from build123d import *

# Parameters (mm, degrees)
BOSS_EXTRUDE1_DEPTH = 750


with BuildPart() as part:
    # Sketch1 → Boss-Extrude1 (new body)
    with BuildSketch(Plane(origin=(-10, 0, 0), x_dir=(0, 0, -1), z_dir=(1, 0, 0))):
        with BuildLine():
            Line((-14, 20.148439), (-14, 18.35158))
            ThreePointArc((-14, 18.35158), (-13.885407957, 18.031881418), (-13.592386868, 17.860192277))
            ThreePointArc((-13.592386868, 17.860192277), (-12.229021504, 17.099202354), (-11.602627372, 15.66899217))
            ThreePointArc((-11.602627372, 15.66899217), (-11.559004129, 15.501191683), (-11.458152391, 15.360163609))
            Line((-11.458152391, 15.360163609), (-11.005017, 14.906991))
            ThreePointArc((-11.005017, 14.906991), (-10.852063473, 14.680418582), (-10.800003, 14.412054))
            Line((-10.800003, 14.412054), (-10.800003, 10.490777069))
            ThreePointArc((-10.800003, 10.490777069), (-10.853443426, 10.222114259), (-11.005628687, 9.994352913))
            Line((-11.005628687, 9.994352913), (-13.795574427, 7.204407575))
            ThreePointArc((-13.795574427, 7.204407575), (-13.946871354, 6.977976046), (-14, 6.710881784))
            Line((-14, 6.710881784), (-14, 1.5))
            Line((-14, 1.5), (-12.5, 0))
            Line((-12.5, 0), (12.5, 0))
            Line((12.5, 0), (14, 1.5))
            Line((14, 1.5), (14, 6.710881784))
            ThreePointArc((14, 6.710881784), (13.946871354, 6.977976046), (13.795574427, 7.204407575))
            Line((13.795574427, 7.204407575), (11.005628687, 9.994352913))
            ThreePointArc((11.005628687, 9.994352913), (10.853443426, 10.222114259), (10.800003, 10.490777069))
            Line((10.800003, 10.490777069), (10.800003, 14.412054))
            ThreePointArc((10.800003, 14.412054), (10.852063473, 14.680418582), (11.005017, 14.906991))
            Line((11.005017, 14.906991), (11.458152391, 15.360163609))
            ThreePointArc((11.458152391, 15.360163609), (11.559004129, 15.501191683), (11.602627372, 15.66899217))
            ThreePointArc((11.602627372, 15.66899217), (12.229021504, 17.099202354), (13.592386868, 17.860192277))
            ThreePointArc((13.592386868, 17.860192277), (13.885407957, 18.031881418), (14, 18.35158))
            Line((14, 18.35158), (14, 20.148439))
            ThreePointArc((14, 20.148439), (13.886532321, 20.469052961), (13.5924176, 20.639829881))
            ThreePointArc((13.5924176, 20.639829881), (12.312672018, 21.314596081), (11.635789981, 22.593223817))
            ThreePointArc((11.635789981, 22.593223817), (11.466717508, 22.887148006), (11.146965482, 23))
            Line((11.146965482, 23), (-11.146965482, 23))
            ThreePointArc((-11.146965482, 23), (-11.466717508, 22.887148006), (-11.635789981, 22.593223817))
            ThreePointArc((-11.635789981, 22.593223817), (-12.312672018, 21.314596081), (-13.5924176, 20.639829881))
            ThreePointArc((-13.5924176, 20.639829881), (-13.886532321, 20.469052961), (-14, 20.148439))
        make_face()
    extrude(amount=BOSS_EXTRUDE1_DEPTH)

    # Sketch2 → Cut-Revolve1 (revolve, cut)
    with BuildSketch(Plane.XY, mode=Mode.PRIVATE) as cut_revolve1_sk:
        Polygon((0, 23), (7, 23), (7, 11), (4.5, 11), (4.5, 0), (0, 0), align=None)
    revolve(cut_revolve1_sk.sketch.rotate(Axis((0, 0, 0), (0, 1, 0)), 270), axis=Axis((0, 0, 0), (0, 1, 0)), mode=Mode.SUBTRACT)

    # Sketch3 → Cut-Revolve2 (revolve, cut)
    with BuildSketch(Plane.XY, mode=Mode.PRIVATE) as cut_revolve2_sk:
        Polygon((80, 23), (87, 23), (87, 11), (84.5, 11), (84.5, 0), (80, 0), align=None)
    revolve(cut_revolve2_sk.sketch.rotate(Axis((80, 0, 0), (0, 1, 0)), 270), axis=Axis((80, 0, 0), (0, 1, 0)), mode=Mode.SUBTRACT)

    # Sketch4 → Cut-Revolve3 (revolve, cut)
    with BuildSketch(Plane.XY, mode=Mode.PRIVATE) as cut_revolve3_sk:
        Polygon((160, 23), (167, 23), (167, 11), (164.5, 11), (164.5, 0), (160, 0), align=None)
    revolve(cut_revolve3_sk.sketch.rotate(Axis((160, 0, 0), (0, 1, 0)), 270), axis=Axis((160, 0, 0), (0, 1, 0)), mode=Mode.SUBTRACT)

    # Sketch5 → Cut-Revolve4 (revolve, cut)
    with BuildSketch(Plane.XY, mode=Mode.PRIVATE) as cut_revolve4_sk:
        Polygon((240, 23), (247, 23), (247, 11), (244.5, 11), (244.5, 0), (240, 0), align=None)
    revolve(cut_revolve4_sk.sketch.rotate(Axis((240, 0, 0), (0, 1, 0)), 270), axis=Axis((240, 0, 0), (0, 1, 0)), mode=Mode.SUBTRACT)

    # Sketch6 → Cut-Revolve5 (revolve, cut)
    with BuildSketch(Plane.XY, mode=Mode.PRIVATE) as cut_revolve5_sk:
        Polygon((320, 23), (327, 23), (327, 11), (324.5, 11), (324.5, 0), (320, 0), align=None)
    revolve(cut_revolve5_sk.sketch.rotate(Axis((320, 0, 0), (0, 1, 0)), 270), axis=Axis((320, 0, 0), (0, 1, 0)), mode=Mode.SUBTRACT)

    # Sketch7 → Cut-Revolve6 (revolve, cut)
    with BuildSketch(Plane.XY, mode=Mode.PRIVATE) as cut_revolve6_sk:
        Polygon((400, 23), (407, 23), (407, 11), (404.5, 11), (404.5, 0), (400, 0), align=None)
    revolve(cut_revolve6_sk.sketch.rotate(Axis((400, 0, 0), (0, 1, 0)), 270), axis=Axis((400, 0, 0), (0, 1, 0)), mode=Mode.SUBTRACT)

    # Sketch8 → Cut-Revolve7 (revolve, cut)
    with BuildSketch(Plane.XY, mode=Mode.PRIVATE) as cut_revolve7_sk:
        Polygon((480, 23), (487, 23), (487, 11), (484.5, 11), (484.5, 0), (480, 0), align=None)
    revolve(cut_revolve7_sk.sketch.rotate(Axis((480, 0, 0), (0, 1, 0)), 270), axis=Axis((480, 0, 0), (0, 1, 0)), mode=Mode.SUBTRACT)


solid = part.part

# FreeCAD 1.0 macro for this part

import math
import FreeCAD as App
import Part
import Sketcher

doc = App.newDocument("Part")
params = doc.addObject("Spreadsheet::Sheet", "Params")
for row, (alias, value) in enumerate([
    ("sketch1_height", "25 mm"),
    ("pad1_length", "750 mm"),
    ("sketch2_width", "7 mm"),
    ("sketch2_height", "23 mm"),
    ("sketch2_height2", "11 mm"),
    ("sketch2_width2", "4.5 mm"),
    ("groove_angle", "360 deg"),
    ("sketch3_width", "7 mm"),
    ("sketch3_height", "23 mm"),
    ("sketch3_height2", "11 mm"),
    ("sketch3_width2", "4.5 mm"),
    ("groove2_angle", "360 deg"),
    ("sketch4_width", "7 mm"),
    ("sketch4_height", "23 mm"),
    ("sketch4_height2", "11 mm"),
    ("sketch4_width2", "4.5 mm"),
    ("groove3_angle", "360 deg"),
    ("sketch5_width", "7 mm"),
    ("sketch5_height", "23 mm"),
    ("sketch5_height2", "11 mm"),
    ("sketch5_width2", "4.5 mm"),
    ("groove4_angle", "360 deg"),
    ("sketch6_width", "7 mm"),
    ("sketch6_height", "23 mm"),
    ("sketch6_height2", "11 mm"),
    ("sketch6_width2", "4.5 mm"),
    ("groove5_angle", "360 deg"),
    ("sketch7_width", "7 mm"),
    ("sketch7_height", "23 mm"),
    ("sketch7_height2", "11 mm"),
    ("sketch7_width2", "4.5 mm"),
    ("groove6_angle", "360 deg"),
    ("sketch8_width", "7 mm"),
    ("sketch8_height", "23 mm"),
    ("sketch8_height2", "11 mm"),
    ("sketch8_width2", "4.5 mm"),
    ("groove7_angle", "360 deg"),
], start=1):
    params.set(f"A{row}", alias)
    params.set(f"B{row}", "=" + value)
    params.setAlias(f"B{row}", alias)

body = doc.addObject("PartDesign::Body", "Body")

# Sketch on YZ plane
sketch1 = doc.addObject("Sketcher::SketchObject", "Sketch")
body.addObject(sketch1)
sketch1.AttachmentSupport = (doc.YZ_Plane, [""])
sketch1.MapMode = "FlatFace"
sketch1.AttachmentOffset = App.Placement(App.Vector(0, 0, -10), App.Rotation())
sketch1.addGeometry(Part.LineSegment(App.Vector(20.148439, 14, 0), App.Vector(18.35158, 14, 0)), False)
sketch1.addGeometry(Part.ArcOfCircle(Part.Circle(App.Vector(18.349522, 13.502484, 0), App.Vector(0, 0, 1), 0.49752), math.radians(89.763002), math.radians(169.58938)), False)
sketch1.addGeometry(Part.ArcOfCircle(Part.Circle(App.Vector(15.452884, 14.042011, 0), App.Vector(0, 0, 1), 2.448938), math.radians(-84.937308), math.radians(-10.579502)), False)
sketch1.addGeometry(Part.ArcOfCircle(Part.Circle(App.Vector(15.702796, 11.128055, 0), App.Vector(0, 0, 1), 0.475774), math.radians(94.074357), math.radians(136.067545)), False)
sketch1.addGeometry(Part.LineSegment(App.Vector(15.360164, 11.458152, 0), App.Vector(14.906991, 11.005017, 0)), False)
sketch1.addGeometry(Part.ArcOfCircle(Part.Circle(App.Vector(14.418543, 11.484273, 0), App.Vector(0, 0, 1), 0.6843), math.radians(-90.543358), math.radians(-44.455776)), False)
sketch1.addGeometry(Part.LineSegment(App.Vector(14.412054, 10.800003, 0), App.Vector(10.490777, 10.800003, 0)), False)
sketch1.addGeometry(Part.ArcOfCircle(Part.Circle(App.Vector(10.490777, 11.502053, 0), App.Vector(0, 0, 1), 0.70205), math.radians(-134.999992), math.radians(-90.000022)), False)
sketch1.addGeometry(Part.LineSegment(App.Vector(9.994353, 11.005629, 0), App.Vector(7.204408, 13.795574, 0)), False)
sketch1.addGeometry(Part.ArcOfCircle(Part.Circle(App.Vector(6.710881, 13.302048, 0), App.Vector(0, 0, 1), 0.697952), math.radians(44.999974), math.radians(89.999928)), False)
sketch1.addGeometry(Part.LineSegment(App.Vector(6.710882, 14, 0), App.Vector(1.5, 14, 0)), False)
sketch1.addGeometry(Part.LineSegment(App.Vector(1.5, 14, 0), App.Vector(0, 12.5, 0)), False)
sketch1.addGeometry(Part.LineSegment(App.Vector(0, 12.5, 0), App.Vector(0, -12.5, 0)), False)
sketch1.addGeometry(Part.LineSegment(App.Vector(0, -12.5, 0), App.Vector(1.5, -14, 0)), False)
sketch1.addGeometry(Part.LineSegment(App.Vector(1.5, -14, 0), App.Vector(6.710882, -14, 0)), False)
sketch1.addGeometry(Part.ArcOfCircle(Part.Circle(App.Vector(6.710881, -13.302048, 0), App.Vector(0, 0, 1), 0.697952), math.radians(-89.999928), math.radians(-44.999974)), False)
sketch1.addGeometry(Part.LineSegment(App.Vector(7.204408, -13.795574, 0), App.Vector(9.994353, -11.005629, 0)), False)
sketch1.addGeometry(Part.ArcOfCircle(Part.Circle(App.Vector(10.490777, -11.502053, 0), App.Vector(0, 0, 1), 0.70205), math.radians(90.000022), math.radians(134.999992)), False)
sketch1.addGeometry(Part.LineSegment(App.Vector(10.490777, -10.800003, 0), App.Vector(14.412054, -10.800003, 0)), False)
sketch1.addGeometry(Part.ArcOfCircle(Part.Circle(App.Vector(14.418543, -11.484273, 0), App.Vector(0, 0, 1), 0.6843), math.radians(44.455776), math.radians(90.543358)), False)
sketch1.addGeometry(Part.LineSegment(App.Vector(14.906991, -11.005017, 0), App.Vector(15.360164, -11.458152, 0)), False)
sketch1.addGeometry(Part.ArcOfCircle(Part.Circle(App.Vector(15.702796, -11.128055, 0), App.Vector(0, 0, 1), 0.475774), math.radians(-136.067545), math.radians(-94.074357)), False)
sketch1.addGeometry(Part.ArcOfCircle(Part.Circle(App.Vector(15.452884, -14.042011, 0), App.Vector(0, 0, 1), 2.448938), math.radians(10.579502), math.radians(84.937308)), False)
sketch1.addGeometry(Part.ArcOfCircle(Part.Circle(App.Vector(18.349522, -13.502484, 0), App.Vector(0, 0, 1), 0.49752), math.radians(-169.58938), math.radians(-89.763002)), False)
sketch1.addGeometry(Part.LineSegment(App.Vector(18.35158, -14, 0), App.Vector(20.148439, -14, 0)), False)
sketch1.addGeometry(Part.ArcOfCircle(Part.Circle(App.Vector(20.15442, -13.507204, 0), App.Vector(0, 0, 1), 0.492833), math.radians(-90.695383), math.radians(-9.956842)), False)
sketch1.addGeometry(Part.ArcOfCircle(Part.Circle(App.Vector(23.050524, -14.045731, 0), App.Vector(0, 0, 1), 2.452945), math.radians(100.74446), math.radians(169.35031)), False)
sketch1.addGeometry(Part.ArcOfCircle(Part.Circle(App.Vector(22.511971, -11.154513, 0), App.Vector(0, 0, 1), 0.488087), math.radians(-80.417246), math.radians(0.886056)), False)
sketch1.addGeometry(Part.LineSegment(App.Vector(23, -11.146965, 0), App.Vector(23, 11.146965, 0)), False)
sketch1.addGeometry(Part.ArcOfCircle(Part.Circle(App.Vector(22.511971, 11.154513, 0), App.Vector(0, 0, 1), 0.488087), math.radians(-0.886056), math.radians(80.417246)), False)
sketch1.addGeometry(Part.ArcOfCircle(Part.Circle(App.Vector(23.050524, 14.045731, 0), App.Vector(0, 0, 1), 2.452945), math.radians(-169.35031), math.radians(-100.74446)), False)
sketch1.addGeometry(Part.ArcOfCircle(Part.Circle(App.Vector(20.15442, 13.507204, 0), App.Vector(0, 0, 1), 0.492833), math.radians(9.956842), math.radians(90.695383)), False)
sketch1.addConstraint(Sketcher.Constraint("Coincident", 0, 2, 1, 1))
sketch1.addConstraint(Sketcher.Constraint("Coincident", 1, 2, 2, 2))
sketch1.addConstraint(Sketcher.Constraint("Coincident", 2, 1, 3, 1))
sketch1.addConstraint(Sketcher.Constraint("Coincident", 3, 2, 4, 1))
sketch1.addConstraint(Sketcher.Constraint("Coincident", 4, 2, 5, 2))
sketch1.addConstraint(Sketcher.Constraint("Coincident", 5, 1, 6, 1))
sketch1.addConstraint(Sketcher.Constraint("Tangent", 6, 2, 7, 2))
sketch1.addConstraint(Sketcher.Constraint("Tangent", 7, 1, 8, 1))
sketch1.addConstraint(Sketcher.Constraint("Tangent", 8, 2, 9, 1))
sketch1.addConstraint(Sketcher.Constraint("Tangent", 9, 2, 10, 1))
sketch1.addConstraint(Sketcher.Constraint("Coincident", 10, 2, 11, 1))
sketch1.addConstraint(Sketcher.Constraint("Coincident", 11, 2, 12, 1))
sketch1.addConstraint(Sketcher.Constraint("Coincident", 12, 2, 13, 1))
sketch1.addConstraint(Sketcher.Constraint("Coincident", 13, 2, 14, 1))
sketch1.addConstraint(Sketcher.Constraint("Tangent", 14, 2, 15, 1))
sketch1.addConstraint(Sketcher.Constraint("Tangent", 15, 2, 16, 1))
sketch1.addConstraint(Sketcher.Constraint("Tangent", 16, 2, 17, 2))
sketch1.addConstraint(Sketcher.Constraint("Tangent", 17, 1, 18, 1))
sketch1.addConstraint(Sketcher.Constraint("Coincident", 18, 2, 19, 2))
sketch1.addConstraint(Sketcher.Constraint("Coincident", 19, 1, 20, 1))
sketch1.addConstraint(Sketcher.Constraint("Coincident", 20, 2, 21, 1))
sketch1.addConstraint(Sketcher.Constraint("Coincident", 21, 2, 22, 2))
sketch1.addConstraint(Sketcher.Constraint("Coincident", 22, 1, 23, 1))
sketch1.addConstraint(Sketcher.Constraint("Coincident", 23, 2, 24, 1))
sketch1.addConstraint(Sketcher.Constraint("Coincident", 24, 2, 25, 1))
sketch1.addConstraint(Sketcher.Constraint("Coincident", 25, 2, 26, 2))
sketch1.addConstraint(Sketcher.Constraint("Coincident", 26, 1, 27, 1))
sketch1.addConstraint(Sketcher.Constraint("Coincident", 27, 2, 28, 1))
sketch1.addConstraint(Sketcher.Constraint("Coincident", 28, 2, 29, 1))
sketch1.addConstraint(Sketcher.Constraint("Coincident", 29, 2, 30, 2))
sketch1.addConstraint(Sketcher.Constraint("Coincident", 30, 1, 31, 1))
sketch1.addConstraint(Sketcher.Constraint("Coincident", 31, 2, 0, 1))
sketch1.addConstraint(Sketcher.Constraint("Horizontal", 0))
sketch1.addConstraint(Sketcher.Constraint("Horizontal", 6))
sketch1.addConstraint(Sketcher.Constraint("Horizontal", 10))
sketch1.addConstraint(Sketcher.Constraint("Vertical", 12))
sketch1.addConstraint(Sketcher.Constraint("Horizontal", 14))
sketch1.addConstraint(Sketcher.Constraint("Horizontal", 18))
sketch1.addConstraint(Sketcher.Constraint("Horizontal", 24))
sketch1.addConstraint(Sketcher.Constraint("Vertical", 28))
sketch1.addConstraint(Sketcher.Constraint("Equal", 9, 15))
sketch1.addConstraint(Sketcher.Constraint("Equal", 7, 17))
sketch1.addConstraint(Sketcher.Constraint("Equal", 5, 19))
sketch1.addConstraint(Sketcher.Constraint("Equal", 3, 21))
sketch1.addConstraint(Sketcher.Constraint("Equal", 2, 22))
sketch1.addConstraint(Sketcher.Constraint("Equal", 1, 23))
sketch1.addConstraint(Sketcher.Constraint("Equal", 27, 29))
sketch1.addConstraint(Sketcher.Constraint("Equal", 26, 30))
sketch1.addConstraint(Sketcher.Constraint("Equal", 25, 31))
sketch1.addConstraint(Sketcher.Constraint("Symmetric", 11, 2, 12, 2, -1, 1))
sketch1.addConstraint(Sketcher.Constraint("Symmetric", 9, 3, 15, 3, -1))
sketch1.addConstraint(Sketcher.Constraint("Symmetric", 7, 3, 17, 3, -1))
sketch1.addConstraint(Sketcher.Constraint("Symmetric", 5, 3, 19, 3, -1))
sketch1.addConstraint(Sketcher.Constraint("Symmetric", 3, 3, 21, 3, -1))
sketch1.addConstraint(Sketcher.Constraint("Symmetric", 2, 3, 22, 3, -1))
sketch1.addConstraint(Sketcher.Constraint("Symmetric", 1, 3, 23, 3, -1))
sketch1.addConstraint(Sketcher.Constraint("Symmetric", 27, 3, 29, 3, -1))
sketch1.addConstraint(Sketcher.Constraint("Symmetric", 26, 3, 30, 3, -1))
sketch1.addConstraint(Sketcher.Constraint("Symmetric", 25, 3, 31, 3, -1))
sketch1.addConstraint(Sketcher.Constraint("Perpendicular", 8, 11))
sketch1.addConstraint(Sketcher.Constraint("Perpendicular", 11, 13))
sketch1.addConstraint(Sketcher.Constraint("Perpendicular", 13, 16))
sketch1.addConstraint(Sketcher.Constraint("Horizontal", 0, 2, 9, 2))
sketch1.addConstraint(Sketcher.Constraint("Vertical", 4, 2, 19, 1))
sketch1.addConstraint(Sketcher.Constraint("Vertical", 3, 2, 20, 2))
sketch1.addConstraint(Sketcher.Constraint("Vertical", 0, 2, 23, 2))
sketch1.addConstraint(Sketcher.Constraint("DistanceY", 12, 2, 12, 1, 25.0))
sketch1.addConstraint(Sketcher.Constraint("DistanceY", -1, 1, 0, 2, 14.0))
sketch1.addConstraint(Sketcher.Constraint("DistanceX", -1, 1, 27, 2, 23.0))
sketch1.addConstraint(Sketcher.Constraint("Radius", 5, 0.6843))
sketch1.addConstraint(Sketcher.Constraint("Radius", 1, 0.49752))
sketch1.addConstraint(Sketcher.Constraint("Radius", 7, 0.70205))
sketch1.addConstraint(Sketcher.Constraint("Radius", 9, 0.697952))
sketch1.addConstraint(Sketcher.Constraint("Radius", 2, 2.448938))
sketch1.addConstraint(Sketcher.Constraint("Radius", 3, 0.475774))
sketch1.addConstraint(Sketcher.Constraint("Radius", 25, 0.492833))
sketch1.addConstraint(Sketcher.Constraint("Radius", 26, 2.452945))
sketch1.addConstraint(Sketcher.Constraint("Radius", 27, 0.488087))
sketch1.addConstraint(Sketcher.Constraint("DistanceX", 23, 3, 26, 3, 4.701002))
sketch1.addConstraint(Sketcher.Constraint("DistanceX", 4, 2, 2, 1, 0.762001))
sketch1.addConstraint(Sketcher.Constraint("DistanceX", 0, 2, 0, 1, 1.796859))
sketch1.addConstraint(Sketcher.Constraint("DistanceX", 10, 2, 10, 1, 5.210882))
sketch1.addConstraint(Sketcher.Constraint("DistanceY", 28, 1, 28, 2, 22.293931))
sketch1.addConstraint(Sketcher.Constraint("DistanceY", 15, 3, 7, 3, 24.804101))
sketch1.addConstraint(Sketcher.Constraint("DistanceX", 23, 3, 25, 3, 1.804898))
sketch1.addConstraint(Sketcher.Constraint("DistanceX", 2, 1, 1, 2, 2.1912))
sketch1.addConstraint(Sketcher.Constraint("DistanceX", 7, 1, 5, 1, 4.417701))
sketch1.addConstraint(Sketcher.Constraint("DistanceX", 26, 1, 26, 3, 0.4573))
sketch1.addConstraint(Sketcher.Constraint("DistanceY", -1, 1, 2, 3, 14.042011))
sketch1.addConstraint(Sketcher.Constraint("DistanceX", -1, 1, 25, 3, 20.15442))
sketch1.addConstraint(Sketcher.Constraint("DistanceY", 26, 3, -1, 1, 14.045731))
sketch1.addConstraint(Sketcher.Constraint("DistanceX", -1, 1, 0, 2, 18.35158))
sketch1.addConstraint(Sketcher.Constraint("DistanceX", -1, 1, 4, 2, 14.906991))
sketch1.addConstraint(Sketcher.Constraint("DistanceY", 3, 3, 1, 3, 2.374429))
sketch1.addConstraint(Sketcher.Constraint("DistanceX", 5, 3, 2, 3, 1.034341))
sketch1.addConstraint(Sketcher.Constraint("DistanceX", 3, 2, 2, 1, 0.308829))
sketch1.setExpression("Constraints[66]", "Params.sketch1_height")
pad1 = doc.addObject("PartDesign::Pad", "Pad")
body.addObject(pad1)
pad1.Profile = sketch1
pad1.setExpression("Length", "Params.pad1_length")

# Sketch on XY plane
sketch2 = doc.addObject("Sketcher::SketchObject", "Sketch001")
body.addObject(sketch2)
sketch2.AttachmentSupport = (doc.XY_Plane, [""])
sketch2.MapMode = "FlatFace"
sketch2.addGeometry(Part.LineSegment(App.Vector(7, 23, 0), App.Vector(0, 23, 0)), False)
sketch2.addGeometry(Part.LineSegment(App.Vector(0, 23, 0), App.Vector(0, 0, 0)), False)
sketch2.addGeometry(Part.LineSegment(App.Vector(0, 0, 0), App.Vector(4.5, 0, 0)), False)
sketch2.addGeometry(Part.LineSegment(App.Vector(4.5, 0, 0), App.Vector(4.5, 11, 0)), False)
sketch2.addGeometry(Part.LineSegment(App.Vector(4.5, 11, 0), App.Vector(7, 11, 0)), False)
sketch2.addGeometry(Part.LineSegment(App.Vector(7, 11, 0), App.Vector(7, 23, 0)), False)
sketch2.addConstraint(Sketcher.Constraint("Coincident", 0, 2, 1, 1))
sketch2.addConstraint(Sketcher.Constraint("Coincident", 1, 2, 2, 1))
sketch2.addConstraint(Sketcher.Constraint("Coincident", 2, 2, 3, 1))
sketch2.addConstraint(Sketcher.Constraint("Coincident", 3, 2, 4, 1))
sketch2.addConstraint(Sketcher.Constraint("Coincident", 4, 2, 5, 1))
sketch2.addConstraint(Sketcher.Constraint("Coincident", 5, 2, 0, 1))
sketch2.addConstraint(Sketcher.Constraint("Horizontal", 0))
sketch2.addConstraint(Sketcher.Constraint("Vertical", 1))
sketch2.addConstraint(Sketcher.Constraint("Horizontal", 2))
sketch2.addConstraint(Sketcher.Constraint("Vertical", 3))
sketch2.addConstraint(Sketcher.Constraint("Horizontal", 4))
sketch2.addConstraint(Sketcher.Constraint("Vertical", 5))
sketch2.addConstraint(Sketcher.Constraint("Coincident", 1, 2, -1, 1))
sketch2.addConstraint(Sketcher.Constraint("DistanceX", 0, 2, 0, 1, 7.0))
sketch2.addConstraint(Sketcher.Constraint("DistanceY", 1, 2, 1, 1, 23.0))
sketch2.addConstraint(Sketcher.Constraint("DistanceY", 3, 1, 3, 2, 11.0))
sketch2.addConstraint(Sketcher.Constraint("DistanceX", 2, 1, 2, 2, 4.5))
sketch2.setExpression("Constraints[13]", "Params.sketch2_width")
sketch2.setExpression("Constraints[14]", "Params.sketch2_height")
sketch2.setExpression("Constraints[15]", "Params.sketch2_height2")
sketch2.setExpression("Constraints[16]", "Params.sketch2_width2")
groove = doc.addObject("PartDesign::Groove", "Groove")
body.addObject(groove)
groove.Profile = sketch2
groove.ReferenceAxis = (sketch2, ["V_Axis"])
groove.setExpression("Angle", "Params.groove_angle")

# Sketch on XY plane
sketch3 = doc.addObject("Sketcher::SketchObject", "Sketch002")
body.addObject(sketch3)
sketch3.AttachmentSupport = (doc.XY_Plane, [""])
sketch3.MapMode = "FlatFace"
sketch3.addGeometry(Part.LineSegment(App.Vector(87, 23, 0), App.Vector(80, 23, 0)), False)
sketch3.addGeometry(Part.LineSegment(App.Vector(80, 23, 0), App.Vector(80, 0, 0)), False)
sketch3.addGeometry(Part.LineSegment(App.Vector(80, 0, 0), App.Vector(84.5, 0, 0)), False)
sketch3.addGeometry(Part.LineSegment(App.Vector(84.5, 0, 0), App.Vector(84.5, 11, 0)), False)
sketch3.addGeometry(Part.LineSegment(App.Vector(84.5, 11, 0), App.Vector(87, 11, 0)), False)
sketch3.addGeometry(Part.LineSegment(App.Vector(87, 11, 0), App.Vector(87, 23, 0)), False)
sketch3.addGeometry(Part.LineSegment(App.Vector(80, 0, 0), App.Vector(80, 23, 0)), True)  # axis
sketch3.addConstraint(Sketcher.Constraint("Coincident", 0, 2, 1, 1))
sketch3.addConstraint(Sketcher.Constraint("Coincident", 1, 2, 2, 1))
sketch3.addConstraint(Sketcher.Constraint("Coincident", 2, 2, 3, 1))
sketch3.addConstraint(Sketcher.Constraint("Coincident", 3, 2, 4, 1))
sketch3.addConstraint(Sketcher.Constraint("Coincident", 4, 2, 5, 1))
sketch3.addConstraint(Sketcher.Constraint("Coincident", 5, 2, 0, 1))
sketch3.addConstraint(Sketcher.Constraint("Horizontal", 0))
sketch3.addConstraint(Sketcher.Constraint("Vertical", 1))
sketch3.addConstraint(Sketcher.Constraint("Horizontal", 2))
sketch3.addConstraint(Sketcher.Constraint("Vertical", 3))
sketch3.addConstraint(Sketcher.Constraint("Horizontal", 4))
sketch3.addConstraint(Sketcher.Constraint("Vertical", 5))
sketch3.addConstraint(Sketcher.Constraint("Vertical", 6))
sketch3.addConstraint(Sketcher.Constraint("Coincident", 6, 1, 1, 2))
sketch3.addConstraint(Sketcher.Constraint("PointOnObject", 1, 2, -1))
sketch3.addConstraint(Sketcher.Constraint("Horizontal", 5, 2, 6, 2))
sketch3.addConstraint(Sketcher.Constraint("DistanceX", 0, 2, 0, 1, 7.0))
sketch3.addConstraint(Sketcher.Constraint("DistanceY", 1, 2, 1, 1, 23.0))
sketch3.addConstraint(Sketcher.Constraint("DistanceY", 3, 1, 3, 2, 11.0))
sketch3.addConstraint(Sketcher.Constraint("DistanceX", 2, 1, 2, 2, 4.5))
sketch3.addConstraint(Sketcher.Constraint("DistanceX", -1, 1, 0, 2, 80.0))
sketch3.setExpression("Constraints[16]", "Params.sketch3_width")
sketch3.setExpression("Constraints[17]", "Params.sketch3_height")
sketch3.setExpression("Constraints[18]", "Params.sketch3_height2")
sketch3.setExpression("Constraints[19]", "Params.sketch3_width2")
groove2 = doc.addObject("PartDesign::Groove", "Groove001")
body.addObject(groove2)
groove2.Profile = sketch3
groove2.ReferenceAxis = (sketch3, ["Axis0"])
groove2.setExpression("Angle", "Params.groove2_angle")

# Sketch on XY plane
sketch4 = doc.addObject("Sketcher::SketchObject", "Sketch003")
body.addObject(sketch4)
sketch4.AttachmentSupport = (doc.XY_Plane, [""])
sketch4.MapMode = "FlatFace"
sketch4.addGeometry(Part.LineSegment(App.Vector(167, 23, 0), App.Vector(160, 23, 0)), False)
sketch4.addGeometry(Part.LineSegment(App.Vector(160, 23, 0), App.Vector(160, 0, 0)), False)
sketch4.addGeometry(Part.LineSegment(App.Vector(160, 0, 0), App.Vector(164.5, 0, 0)), False)
sketch4.addGeometry(Part.LineSegment(App.Vector(164.5, 0, 0), App.Vector(164.5, 11, 0)), False)
sketch4.addGeometry(Part.LineSegment(App.Vector(164.5, 11, 0), App.Vector(167, 11, 0)), False)
sketch4.addGeometry(Part.LineSegment(App.Vector(167, 11, 0), App.Vector(167, 23, 0)), False)
sketch4.addGeometry(Part.LineSegment(App.Vector(160, 0, 0), App.Vector(160, 23, 0)), True)  # axis
sketch4.addConstraint(Sketcher.Constraint("Coincident", 0, 2, 1, 1))
sketch4.addConstraint(Sketcher.Constraint("Coincident", 1, 2, 2, 1))
sketch4.addConstraint(Sketcher.Constraint("Coincident", 2, 2, 3, 1))
sketch4.addConstraint(Sketcher.Constraint("Coincident", 3, 2, 4, 1))
sketch4.addConstraint(Sketcher.Constraint("Coincident", 4, 2, 5, 1))
sketch4.addConstraint(Sketcher.Constraint("Coincident", 5, 2, 0, 1))
sketch4.addConstraint(Sketcher.Constraint("Horizontal", 0))
sketch4.addConstraint(Sketcher.Constraint("Vertical", 1))
sketch4.addConstraint(Sketcher.Constraint("Horizontal", 2))
sketch4.addConstraint(Sketcher.Constraint("Vertical", 3))
sketch4.addConstraint(Sketcher.Constraint("Horizontal", 4))
sketch4.addConstraint(Sketcher.Constraint("Vertical", 5))
sketch4.addConstraint(Sketcher.Constraint("Vertical", 6))
sketch4.addConstraint(Sketcher.Constraint("Coincident", 6, 1, 1, 2))
sketch4.addConstraint(Sketcher.Constraint("PointOnObject", 1, 2, -1))
sketch4.addConstraint(Sketcher.Constraint("Horizontal", 5, 2, 6, 2))
sketch4.addConstraint(Sketcher.Constraint("DistanceX", 0, 2, 0, 1, 7.0))
sketch4.addConstraint(Sketcher.Constraint("DistanceY", 1, 2, 1, 1, 23.0))
sketch4.addConstraint(Sketcher.Constraint("DistanceY", 3, 1, 3, 2, 11.0))
sketch4.addConstraint(Sketcher.Constraint("DistanceX", 2, 1, 2, 2, 4.5))
sketch4.addConstraint(Sketcher.Constraint("DistanceX", -1, 1, 0, 2, 160.0))
sketch4.setExpression("Constraints[16]", "Params.sketch4_width")
sketch4.setExpression("Constraints[17]", "Params.sketch4_height")
sketch4.setExpression("Constraints[18]", "Params.sketch4_height2")
sketch4.setExpression("Constraints[19]", "Params.sketch4_width2")
groove3 = doc.addObject("PartDesign::Groove", "Groove002")
body.addObject(groove3)
groove3.Profile = sketch4
groove3.ReferenceAxis = (sketch4, ["Axis0"])
groove3.setExpression("Angle", "Params.groove3_angle")

# Sketch on XY plane
sketch5 = doc.addObject("Sketcher::SketchObject", "Sketch004")
body.addObject(sketch5)
sketch5.AttachmentSupport = (doc.XY_Plane, [""])
sketch5.MapMode = "FlatFace"
sketch5.addGeometry(Part.LineSegment(App.Vector(247, 23, 0), App.Vector(240, 23, 0)), False)
sketch5.addGeometry(Part.LineSegment(App.Vector(240, 23, 0), App.Vector(240, 0, 0)), False)
sketch5.addGeometry(Part.LineSegment(App.Vector(240, 0, 0), App.Vector(244.5, 0, 0)), False)
sketch5.addGeometry(Part.LineSegment(App.Vector(244.5, 0, 0), App.Vector(244.5, 11, 0)), False)
sketch5.addGeometry(Part.LineSegment(App.Vector(244.5, 11, 0), App.Vector(247, 11, 0)), False)
sketch5.addGeometry(Part.LineSegment(App.Vector(247, 11, 0), App.Vector(247, 23, 0)), False)
sketch5.addGeometry(Part.LineSegment(App.Vector(240, 0, 0), App.Vector(240, 23, 0)), True)  # axis
sketch5.addConstraint(Sketcher.Constraint("Coincident", 0, 2, 1, 1))
sketch5.addConstraint(Sketcher.Constraint("Coincident", 1, 2, 2, 1))
sketch5.addConstraint(Sketcher.Constraint("Coincident", 2, 2, 3, 1))
sketch5.addConstraint(Sketcher.Constraint("Coincident", 3, 2, 4, 1))
sketch5.addConstraint(Sketcher.Constraint("Coincident", 4, 2, 5, 1))
sketch5.addConstraint(Sketcher.Constraint("Coincident", 5, 2, 0, 1))
sketch5.addConstraint(Sketcher.Constraint("Horizontal", 0))
sketch5.addConstraint(Sketcher.Constraint("Vertical", 1))
sketch5.addConstraint(Sketcher.Constraint("Horizontal", 2))
sketch5.addConstraint(Sketcher.Constraint("Vertical", 3))
sketch5.addConstraint(Sketcher.Constraint("Horizontal", 4))
sketch5.addConstraint(Sketcher.Constraint("Vertical", 5))
sketch5.addConstraint(Sketcher.Constraint("Vertical", 6))
sketch5.addConstraint(Sketcher.Constraint("Coincident", 6, 1, 1, 2))
sketch5.addConstraint(Sketcher.Constraint("PointOnObject", 1, 2, -1))
sketch5.addConstraint(Sketcher.Constraint("Horizontal", 5, 2, 6, 2))
sketch5.addConstraint(Sketcher.Constraint("DistanceX", 0, 2, 0, 1, 7.0))
sketch5.addConstraint(Sketcher.Constraint("DistanceY", 1, 2, 1, 1, 23.0))
sketch5.addConstraint(Sketcher.Constraint("DistanceY", 3, 1, 3, 2, 11.0))
sketch5.addConstraint(Sketcher.Constraint("DistanceX", 2, 1, 2, 2, 4.5))
sketch5.addConstraint(Sketcher.Constraint("DistanceX", -1, 1, 0, 2, 240.0))
sketch5.setExpression("Constraints[16]", "Params.sketch5_width")
sketch5.setExpression("Constraints[17]", "Params.sketch5_height")
sketch5.setExpression("Constraints[18]", "Params.sketch5_height2")
sketch5.setExpression("Constraints[19]", "Params.sketch5_width2")
groove4 = doc.addObject("PartDesign::Groove", "Groove003")
body.addObject(groove4)
groove4.Profile = sketch5
groove4.ReferenceAxis = (sketch5, ["Axis0"])
groove4.setExpression("Angle", "Params.groove4_angle")

# Sketch on XY plane
sketch6 = doc.addObject("Sketcher::SketchObject", "Sketch005")
body.addObject(sketch6)
sketch6.AttachmentSupport = (doc.XY_Plane, [""])
sketch6.MapMode = "FlatFace"
sketch6.addGeometry(Part.LineSegment(App.Vector(327, 23, 0), App.Vector(320, 23, 0)), False)
sketch6.addGeometry(Part.LineSegment(App.Vector(320, 23, 0), App.Vector(320, 0, 0)), False)
sketch6.addGeometry(Part.LineSegment(App.Vector(320, 0, 0), App.Vector(324.5, 0, 0)), False)
sketch6.addGeometry(Part.LineSegment(App.Vector(324.5, 0, 0), App.Vector(324.5, 11, 0)), False)
sketch6.addGeometry(Part.LineSegment(App.Vector(324.5, 11, 0), App.Vector(327, 11, 0)), False)
sketch6.addGeometry(Part.LineSegment(App.Vector(327, 11, 0), App.Vector(327, 23, 0)), False)
sketch6.addGeometry(Part.LineSegment(App.Vector(320, 0, 0), App.Vector(320, 23, 0)), True)  # axis
sketch6.addConstraint(Sketcher.Constraint("Coincident", 0, 2, 1, 1))
sketch6.addConstraint(Sketcher.Constraint("Coincident", 1, 2, 2, 1))
sketch6.addConstraint(Sketcher.Constraint("Coincident", 2, 2, 3, 1))
sketch6.addConstraint(Sketcher.Constraint("Coincident", 3, 2, 4, 1))
sketch6.addConstraint(Sketcher.Constraint("Coincident", 4, 2, 5, 1))
sketch6.addConstraint(Sketcher.Constraint("Coincident", 5, 2, 0, 1))
sketch6.addConstraint(Sketcher.Constraint("Horizontal", 0))
sketch6.addConstraint(Sketcher.Constraint("Vertical", 1))
sketch6.addConstraint(Sketcher.Constraint("Horizontal", 2))
sketch6.addConstraint(Sketcher.Constraint("Vertical", 3))
sketch6.addConstraint(Sketcher.Constraint("Horizontal", 4))
sketch6.addConstraint(Sketcher.Constraint("Vertical", 5))
sketch6.addConstraint(Sketcher.Constraint("Vertical", 6))
sketch6.addConstraint(Sketcher.Constraint("Coincident", 6, 1, 1, 2))
sketch6.addConstraint(Sketcher.Constraint("PointOnObject", 1, 2, -1))
sketch6.addConstraint(Sketcher.Constraint("Horizontal", 5, 2, 6, 2))
sketch6.addConstraint(Sketcher.Constraint("DistanceX", 0, 2, 0, 1, 7.0))
sketch6.addConstraint(Sketcher.Constraint("DistanceY", 1, 2, 1, 1, 23.0))
sketch6.addConstraint(Sketcher.Constraint("DistanceY", 3, 1, 3, 2, 11.0))
sketch6.addConstraint(Sketcher.Constraint("DistanceX", 2, 1, 2, 2, 4.5))
sketch6.addConstraint(Sketcher.Constraint("DistanceX", -1, 1, 0, 2, 320.0))
sketch6.setExpression("Constraints[16]", "Params.sketch6_width")
sketch6.setExpression("Constraints[17]", "Params.sketch6_height")
sketch6.setExpression("Constraints[18]", "Params.sketch6_height2")
sketch6.setExpression("Constraints[19]", "Params.sketch6_width2")
groove5 = doc.addObject("PartDesign::Groove", "Groove004")
body.addObject(groove5)
groove5.Profile = sketch6
groove5.ReferenceAxis = (sketch6, ["Axis0"])
groove5.setExpression("Angle", "Params.groove5_angle")

# Sketch on XY plane
sketch7 = doc.addObject("Sketcher::SketchObject", "Sketch006")
body.addObject(sketch7)
sketch7.AttachmentSupport = (doc.XY_Plane, [""])
sketch7.MapMode = "FlatFace"
sketch7.addGeometry(Part.LineSegment(App.Vector(407, 23, 0), App.Vector(400, 23, 0)), False)
sketch7.addGeometry(Part.LineSegment(App.Vector(400, 23, 0), App.Vector(400, 0, 0)), False)
sketch7.addGeometry(Part.LineSegment(App.Vector(400, 0, 0), App.Vector(404.5, 0, 0)), False)
sketch7.addGeometry(Part.LineSegment(App.Vector(404.5, 0, 0), App.Vector(404.5, 11, 0)), False)
sketch7.addGeometry(Part.LineSegment(App.Vector(404.5, 11, 0), App.Vector(407, 11, 0)), False)
sketch7.addGeometry(Part.LineSegment(App.Vector(407, 11, 0), App.Vector(407, 23, 0)), False)
sketch7.addGeometry(Part.LineSegment(App.Vector(400, 0, 0), App.Vector(400, 23, 0)), True)  # axis
sketch7.addConstraint(Sketcher.Constraint("Coincident", 0, 2, 1, 1))
sketch7.addConstraint(Sketcher.Constraint("Coincident", 1, 2, 2, 1))
sketch7.addConstraint(Sketcher.Constraint("Coincident", 2, 2, 3, 1))
sketch7.addConstraint(Sketcher.Constraint("Coincident", 3, 2, 4, 1))
sketch7.addConstraint(Sketcher.Constraint("Coincident", 4, 2, 5, 1))
sketch7.addConstraint(Sketcher.Constraint("Coincident", 5, 2, 0, 1))
sketch7.addConstraint(Sketcher.Constraint("Horizontal", 0))
sketch7.addConstraint(Sketcher.Constraint("Vertical", 1))
sketch7.addConstraint(Sketcher.Constraint("Horizontal", 2))
sketch7.addConstraint(Sketcher.Constraint("Vertical", 3))
sketch7.addConstraint(Sketcher.Constraint("Horizontal", 4))
sketch7.addConstraint(Sketcher.Constraint("Vertical", 5))
sketch7.addConstraint(Sketcher.Constraint("Vertical", 6))
sketch7.addConstraint(Sketcher.Constraint("Coincident", 6, 1, 1, 2))
sketch7.addConstraint(Sketcher.Constraint("PointOnObject", 1, 2, -1))
sketch7.addConstraint(Sketcher.Constraint("Horizontal", 5, 2, 6, 2))
sketch7.addConstraint(Sketcher.Constraint("DistanceX", 0, 2, 0, 1, 7.0))
sketch7.addConstraint(Sketcher.Constraint("DistanceY", 1, 2, 1, 1, 23.0))
sketch7.addConstraint(Sketcher.Constraint("DistanceY", 3, 1, 3, 2, 11.0))
sketch7.addConstraint(Sketcher.Constraint("DistanceX", 2, 1, 2, 2, 4.5))
sketch7.addConstraint(Sketcher.Constraint("DistanceX", -1, 1, 0, 2, 400.0))
sketch7.setExpression("Constraints[16]", "Params.sketch7_width")
sketch7.setExpression("Constraints[17]", "Params.sketch7_height")
sketch7.setExpression("Constraints[18]", "Params.sketch7_height2")
sketch7.setExpression("Constraints[19]", "Params.sketch7_width2")
groove6 = doc.addObject("PartDesign::Groove", "Groove005")
body.addObject(groove6)
groove6.Profile = sketch7
groove6.ReferenceAxis = (sketch7, ["Axis0"])
groove6.setExpression("Angle", "Params.groove6_angle")

# Sketch on XY plane
sketch8 = doc.addObject("Sketcher::SketchObject", "Sketch007")
body.addObject(sketch8)
sketch8.AttachmentSupport = (doc.XY_Plane, [""])
sketch8.MapMode = "FlatFace"
sketch8.addGeometry(Part.LineSegment(App.Vector(487, 23, 0), App.Vector(480, 23, 0)), False)
sketch8.addGeometry(Part.LineSegment(App.Vector(480, 23, 0), App.Vector(480, 0, 0)), False)
sketch8.addGeometry(Part.LineSegment(App.Vector(480, 0, 0), App.Vector(484.5, 0, 0)), False)
sketch8.addGeometry(Part.LineSegment(App.Vector(484.5, 0, 0), App.Vector(484.5, 11, 0)), False)
sketch8.addGeometry(Part.LineSegment(App.Vector(484.5, 11, 0), App.Vector(487, 11, 0)), False)
sketch8.addGeometry(Part.LineSegment(App.Vector(487, 11, 0), App.Vector(487, 23, 0)), False)
sketch8.addGeometry(Part.LineSegment(App.Vector(480, 0, 0), App.Vector(480, 23, 0)), True)  # axis
sketch8.addConstraint(Sketcher.Constraint("Coincident", 0, 2, 1, 1))
sketch8.addConstraint(Sketcher.Constraint("Coincident", 1, 2, 2, 1))
sketch8.addConstraint(Sketcher.Constraint("Coincident", 2, 2, 3, 1))
sketch8.addConstraint(Sketcher.Constraint("Coincident", 3, 2, 4, 1))
sketch8.addConstraint(Sketcher.Constraint("Coincident", 4, 2, 5, 1))
sketch8.addConstraint(Sketcher.Constraint("Coincident", 5, 2, 0, 1))
sketch8.addConstraint(Sketcher.Constraint("Horizontal", 0))
sketch8.addConstraint(Sketcher.Constraint("Vertical", 1))
sketch8.addConstraint(Sketcher.Constraint("Horizontal", 2))
sketch8.addConstraint(Sketcher.Constraint("Vertical", 3))
sketch8.addConstraint(Sketcher.Constraint("Horizontal", 4))
sketch8.addConstraint(Sketcher.Constraint("Vertical", 5))
sketch8.addConstraint(Sketcher.Constraint("Vertical", 6))
sketch8.addConstraint(Sketcher.Constraint("Coincident", 6, 1, 1, 2))
sketch8.addConstraint(Sketcher.Constraint("PointOnObject", 1, 2, -1))
sketch8.addConstraint(Sketcher.Constraint("Horizontal", 5, 2, 6, 2))
sketch8.addConstraint(Sketcher.Constraint("DistanceX", 0, 2, 0, 1, 7.0))
sketch8.addConstraint(Sketcher.Constraint("DistanceY", 1, 2, 1, 1, 23.0))
sketch8.addConstraint(Sketcher.Constraint("DistanceY", 3, 1, 3, 2, 11.0))
sketch8.addConstraint(Sketcher.Constraint("DistanceX", 2, 1, 2, 2, 4.5))
sketch8.addConstraint(Sketcher.Constraint("DistanceX", -1, 1, 0, 2, 480.0))
sketch8.setExpression("Constraints[16]", "Params.sketch8_width")
sketch8.setExpression("Constraints[17]", "Params.sketch8_height")
sketch8.setExpression("Constraints[18]", "Params.sketch8_height2")
sketch8.setExpression("Constraints[19]", "Params.sketch8_width2")
groove7 = doc.addObject("PartDesign::Groove", "Groove006")
body.addObject(groove7)
groove7.Profile = sketch8
groove7.ReferenceAxis = (sketch8, ["Axis0"])
groove7.setExpression("Angle", "Params.groove7_angle")

doc.recompute()
